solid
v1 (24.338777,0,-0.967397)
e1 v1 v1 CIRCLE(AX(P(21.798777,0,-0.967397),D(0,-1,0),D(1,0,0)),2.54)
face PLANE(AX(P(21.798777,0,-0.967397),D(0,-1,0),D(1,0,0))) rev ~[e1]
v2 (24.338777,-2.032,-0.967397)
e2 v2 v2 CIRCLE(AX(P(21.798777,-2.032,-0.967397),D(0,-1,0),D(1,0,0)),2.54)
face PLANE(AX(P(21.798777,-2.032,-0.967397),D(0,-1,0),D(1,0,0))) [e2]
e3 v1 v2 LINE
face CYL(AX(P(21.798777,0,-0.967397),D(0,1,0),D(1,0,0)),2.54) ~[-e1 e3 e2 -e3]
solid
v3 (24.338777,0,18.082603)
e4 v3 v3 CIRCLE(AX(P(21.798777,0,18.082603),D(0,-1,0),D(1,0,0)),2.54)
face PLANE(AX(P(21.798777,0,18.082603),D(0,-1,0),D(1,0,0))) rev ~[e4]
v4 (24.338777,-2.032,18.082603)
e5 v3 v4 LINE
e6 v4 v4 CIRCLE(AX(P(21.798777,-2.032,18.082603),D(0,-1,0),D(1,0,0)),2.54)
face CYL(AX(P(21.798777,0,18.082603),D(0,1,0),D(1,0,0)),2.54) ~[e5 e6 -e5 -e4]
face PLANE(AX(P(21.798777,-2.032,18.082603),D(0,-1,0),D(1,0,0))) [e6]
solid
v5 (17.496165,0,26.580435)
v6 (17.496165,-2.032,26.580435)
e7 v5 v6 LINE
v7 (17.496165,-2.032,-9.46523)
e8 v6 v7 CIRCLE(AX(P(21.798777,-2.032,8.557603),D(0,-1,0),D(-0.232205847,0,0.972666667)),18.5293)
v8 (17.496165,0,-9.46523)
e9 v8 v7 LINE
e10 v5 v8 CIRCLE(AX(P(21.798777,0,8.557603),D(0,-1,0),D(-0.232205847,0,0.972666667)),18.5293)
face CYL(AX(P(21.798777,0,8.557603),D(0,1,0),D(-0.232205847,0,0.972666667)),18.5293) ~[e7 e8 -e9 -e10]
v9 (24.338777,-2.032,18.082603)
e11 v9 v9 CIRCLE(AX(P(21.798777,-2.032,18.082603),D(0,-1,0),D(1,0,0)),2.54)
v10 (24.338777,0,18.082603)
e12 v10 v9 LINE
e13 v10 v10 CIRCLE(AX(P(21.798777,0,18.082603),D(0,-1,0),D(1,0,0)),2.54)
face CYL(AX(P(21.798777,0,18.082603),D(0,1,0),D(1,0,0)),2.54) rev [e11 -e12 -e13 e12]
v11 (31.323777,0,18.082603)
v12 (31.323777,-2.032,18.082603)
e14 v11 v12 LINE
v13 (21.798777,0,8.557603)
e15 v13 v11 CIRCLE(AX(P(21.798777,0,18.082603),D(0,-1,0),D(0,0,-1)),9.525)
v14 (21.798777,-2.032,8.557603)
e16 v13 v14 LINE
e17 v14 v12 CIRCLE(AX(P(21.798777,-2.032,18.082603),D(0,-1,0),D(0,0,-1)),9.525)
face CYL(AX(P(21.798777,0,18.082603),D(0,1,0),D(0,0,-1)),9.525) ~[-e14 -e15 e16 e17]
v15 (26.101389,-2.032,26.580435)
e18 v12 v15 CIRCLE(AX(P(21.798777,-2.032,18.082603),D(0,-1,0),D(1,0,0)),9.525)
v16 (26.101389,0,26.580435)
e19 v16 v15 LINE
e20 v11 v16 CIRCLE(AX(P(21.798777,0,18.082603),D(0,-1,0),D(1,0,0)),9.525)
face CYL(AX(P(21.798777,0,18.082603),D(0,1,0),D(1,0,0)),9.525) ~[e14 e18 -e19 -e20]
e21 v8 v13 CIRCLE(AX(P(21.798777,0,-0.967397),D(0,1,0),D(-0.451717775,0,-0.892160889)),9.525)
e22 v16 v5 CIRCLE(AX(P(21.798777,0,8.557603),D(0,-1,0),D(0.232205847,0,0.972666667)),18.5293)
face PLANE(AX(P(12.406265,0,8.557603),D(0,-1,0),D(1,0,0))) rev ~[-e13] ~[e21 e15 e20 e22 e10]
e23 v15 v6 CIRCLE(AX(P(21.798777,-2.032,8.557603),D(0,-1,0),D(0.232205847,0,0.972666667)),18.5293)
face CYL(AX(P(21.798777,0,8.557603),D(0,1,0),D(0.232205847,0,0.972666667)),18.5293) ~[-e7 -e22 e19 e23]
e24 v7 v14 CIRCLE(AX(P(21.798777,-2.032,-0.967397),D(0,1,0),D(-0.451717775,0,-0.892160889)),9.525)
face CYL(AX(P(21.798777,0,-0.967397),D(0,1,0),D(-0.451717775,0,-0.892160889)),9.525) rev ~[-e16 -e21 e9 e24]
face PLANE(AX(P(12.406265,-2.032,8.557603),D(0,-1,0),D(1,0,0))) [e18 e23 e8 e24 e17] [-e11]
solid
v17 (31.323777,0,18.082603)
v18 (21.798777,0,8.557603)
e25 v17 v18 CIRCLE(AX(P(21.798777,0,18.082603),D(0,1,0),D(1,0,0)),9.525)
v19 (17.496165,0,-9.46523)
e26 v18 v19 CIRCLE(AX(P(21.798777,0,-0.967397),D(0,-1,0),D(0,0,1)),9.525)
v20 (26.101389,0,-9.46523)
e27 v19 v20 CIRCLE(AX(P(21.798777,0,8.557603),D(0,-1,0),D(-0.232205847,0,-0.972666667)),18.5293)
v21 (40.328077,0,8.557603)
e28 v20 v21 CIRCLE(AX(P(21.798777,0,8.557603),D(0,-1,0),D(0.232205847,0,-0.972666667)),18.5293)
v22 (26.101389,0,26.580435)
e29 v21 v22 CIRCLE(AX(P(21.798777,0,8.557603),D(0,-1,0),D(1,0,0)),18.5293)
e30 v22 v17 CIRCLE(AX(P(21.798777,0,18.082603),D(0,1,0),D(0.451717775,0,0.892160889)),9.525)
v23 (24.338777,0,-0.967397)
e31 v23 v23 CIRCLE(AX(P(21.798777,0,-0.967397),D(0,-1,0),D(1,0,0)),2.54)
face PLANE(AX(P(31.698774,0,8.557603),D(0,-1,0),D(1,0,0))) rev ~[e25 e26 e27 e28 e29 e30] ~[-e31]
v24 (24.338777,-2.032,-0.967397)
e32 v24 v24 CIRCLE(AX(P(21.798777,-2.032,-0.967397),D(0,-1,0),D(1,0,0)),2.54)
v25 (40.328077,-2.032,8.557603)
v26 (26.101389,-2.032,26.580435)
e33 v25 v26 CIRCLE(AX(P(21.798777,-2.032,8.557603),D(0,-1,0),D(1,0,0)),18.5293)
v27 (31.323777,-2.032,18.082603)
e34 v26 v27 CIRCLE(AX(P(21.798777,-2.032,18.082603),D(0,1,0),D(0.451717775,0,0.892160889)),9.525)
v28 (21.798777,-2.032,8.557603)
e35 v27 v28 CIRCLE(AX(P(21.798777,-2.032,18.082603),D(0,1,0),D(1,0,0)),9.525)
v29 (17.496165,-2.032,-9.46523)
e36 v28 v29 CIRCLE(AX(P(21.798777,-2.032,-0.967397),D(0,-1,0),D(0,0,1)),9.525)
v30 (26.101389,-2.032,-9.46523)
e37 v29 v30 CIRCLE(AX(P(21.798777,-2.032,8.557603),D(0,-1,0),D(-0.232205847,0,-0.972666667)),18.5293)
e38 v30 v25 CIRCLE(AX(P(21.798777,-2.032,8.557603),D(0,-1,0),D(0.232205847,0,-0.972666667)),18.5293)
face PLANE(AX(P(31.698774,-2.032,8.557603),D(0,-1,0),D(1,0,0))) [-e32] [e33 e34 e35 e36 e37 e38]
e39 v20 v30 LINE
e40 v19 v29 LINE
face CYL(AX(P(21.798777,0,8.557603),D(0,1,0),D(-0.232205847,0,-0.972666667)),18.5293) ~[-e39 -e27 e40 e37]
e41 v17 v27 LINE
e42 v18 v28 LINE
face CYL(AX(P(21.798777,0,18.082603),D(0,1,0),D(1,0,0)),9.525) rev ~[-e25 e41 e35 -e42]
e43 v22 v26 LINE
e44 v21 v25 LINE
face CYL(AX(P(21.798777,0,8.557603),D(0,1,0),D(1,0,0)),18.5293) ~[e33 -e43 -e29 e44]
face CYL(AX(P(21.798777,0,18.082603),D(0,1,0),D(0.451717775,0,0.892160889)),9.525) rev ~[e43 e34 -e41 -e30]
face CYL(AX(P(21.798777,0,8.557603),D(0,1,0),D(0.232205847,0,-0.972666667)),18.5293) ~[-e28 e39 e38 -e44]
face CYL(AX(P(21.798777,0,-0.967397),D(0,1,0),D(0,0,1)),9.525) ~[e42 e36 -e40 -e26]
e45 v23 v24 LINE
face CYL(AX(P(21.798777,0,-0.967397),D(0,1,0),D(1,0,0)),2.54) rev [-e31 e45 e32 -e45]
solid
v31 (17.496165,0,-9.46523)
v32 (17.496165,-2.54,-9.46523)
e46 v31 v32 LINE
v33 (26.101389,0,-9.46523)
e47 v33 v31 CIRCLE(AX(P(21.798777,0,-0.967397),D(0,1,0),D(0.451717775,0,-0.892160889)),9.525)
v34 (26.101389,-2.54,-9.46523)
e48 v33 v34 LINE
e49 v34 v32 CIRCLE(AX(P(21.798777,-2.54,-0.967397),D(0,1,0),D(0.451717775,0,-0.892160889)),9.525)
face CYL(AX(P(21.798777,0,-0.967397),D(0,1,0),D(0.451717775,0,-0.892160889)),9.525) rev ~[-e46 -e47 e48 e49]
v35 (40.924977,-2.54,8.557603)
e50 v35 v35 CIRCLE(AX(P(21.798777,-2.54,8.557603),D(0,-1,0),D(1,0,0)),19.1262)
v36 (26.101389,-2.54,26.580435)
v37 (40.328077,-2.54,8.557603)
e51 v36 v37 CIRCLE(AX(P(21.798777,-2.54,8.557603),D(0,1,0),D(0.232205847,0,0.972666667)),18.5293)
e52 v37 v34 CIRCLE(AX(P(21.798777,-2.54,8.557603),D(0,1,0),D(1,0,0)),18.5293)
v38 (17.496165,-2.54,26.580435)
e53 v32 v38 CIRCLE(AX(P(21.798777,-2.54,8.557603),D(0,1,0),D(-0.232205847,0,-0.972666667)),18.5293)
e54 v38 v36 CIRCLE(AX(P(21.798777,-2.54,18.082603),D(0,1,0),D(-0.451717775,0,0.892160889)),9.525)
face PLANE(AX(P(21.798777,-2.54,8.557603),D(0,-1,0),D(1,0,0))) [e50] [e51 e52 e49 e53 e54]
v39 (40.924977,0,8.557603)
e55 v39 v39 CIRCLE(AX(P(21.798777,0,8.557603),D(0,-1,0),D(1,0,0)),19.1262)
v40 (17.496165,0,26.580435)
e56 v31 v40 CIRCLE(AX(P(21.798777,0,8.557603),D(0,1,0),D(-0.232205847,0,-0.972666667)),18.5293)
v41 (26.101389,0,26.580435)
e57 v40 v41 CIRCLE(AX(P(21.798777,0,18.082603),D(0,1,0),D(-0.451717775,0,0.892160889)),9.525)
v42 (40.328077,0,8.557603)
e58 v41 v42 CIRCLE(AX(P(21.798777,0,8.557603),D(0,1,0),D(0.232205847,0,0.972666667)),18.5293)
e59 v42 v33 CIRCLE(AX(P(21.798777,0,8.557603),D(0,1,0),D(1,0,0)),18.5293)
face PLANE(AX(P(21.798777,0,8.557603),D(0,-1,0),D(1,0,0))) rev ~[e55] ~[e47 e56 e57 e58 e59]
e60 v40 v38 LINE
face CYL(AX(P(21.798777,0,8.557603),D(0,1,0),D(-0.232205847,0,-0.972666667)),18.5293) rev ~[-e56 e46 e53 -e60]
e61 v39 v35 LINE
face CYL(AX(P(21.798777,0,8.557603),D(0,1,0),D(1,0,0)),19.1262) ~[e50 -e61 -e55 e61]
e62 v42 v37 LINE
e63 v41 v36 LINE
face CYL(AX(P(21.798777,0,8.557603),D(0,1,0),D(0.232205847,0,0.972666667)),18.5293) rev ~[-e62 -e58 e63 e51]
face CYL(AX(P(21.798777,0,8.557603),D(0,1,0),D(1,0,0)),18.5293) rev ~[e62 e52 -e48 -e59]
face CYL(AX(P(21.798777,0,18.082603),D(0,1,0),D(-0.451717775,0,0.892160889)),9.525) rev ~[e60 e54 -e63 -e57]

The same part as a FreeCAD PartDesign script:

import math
import FreeCAD as App
import Part
import Sketcher
Q = App.Units.Quantity

doc = App.newDocument("Part")
body = doc.addObject("PartDesign::Body", "Body")

sketch1 = doc.addObject("Sketcher::SketchObject", "Sketch")
body.addObject(sketch1)
sketch1.AttachmentSupport = (doc.XZ_Plane, [""])
sketch1.MapMode = "FlatFace"
sketch1.addGeometry([
    Part.ArcOfCircle(Part.Circle(App.Vector(21.8, 8.6, 0), App.Vector(0, 0, 1), 18.5), math.radians(103), math.radians(257)),
    Part.ArcOfCircle(Part.Circle(App.Vector(21.8, -1, 0), App.Vector(0, 0, 1), 9.5), math.radians(90), math.radians(243)),
    Part.ArcOfCircle(Part.Circle(App.Vector(21.8, 18.1, 0), App.Vector(0, 0, 1), 9.5), math.radians(-90), math.radians(0)),
    Part.ArcOfCircle(Part.Circle(App.Vector(21.8, 18.1, 0), App.Vector(0, 0, 1), 9.5), math.radians(0), math.radians(63)),
    Part.ArcOfCircle(Part.Circle(App.Vector(21.8, 8.6, 0), App.Vector(0, 0, 1), 18.5), math.radians(77), math.radians(103)),
    Part.Circle(App.Vector(21.8, 18.1, 0), App.Vector(0, 0, 1), 2.5),
], False)
sketch1.addConstraint([
    Sketcher.Constraint("Coincident", 0, 2, 1, 2),
    Sketcher.Constraint("Tangent", 1, 1, 2, 1),
    Sketcher.Constraint("Tangent", 2, 2, 3, 1),
    Sketcher.Constraint("Coincident", 3, 2, 4, 1),
    Sketcher.Constraint("Tangent", 4, 2, 0, 1),
    Sketcher.Constraint("Coincident", 5, 3, 2, 3),
    Sketcher.Constraint("Coincident", 1, 1, 0, 3),
    Sketcher.Constraint("Equal", 1, 2),
    Sketcher.Constraint("Equal", 2, 3),
    Sketcher.Constraint("Equal", 0, 4),
    Sketcher.Constraint("Horizontal", 5, 3, 2, 2),
    Sketcher.Constraint("Horizontal", 3, 2, 4, 2),
    Sketcher.Constraint("Vertical", 0, 3, 1, 3),
    Sketcher.Constraint("Diameter", 5, Q("0.2 in")),
    Sketcher.Constraint("Radius", 1, Q("0.375 in")),
    Sketcher.Constraint("Radius", 0, Q("0.7295 in")),
    Sketcher.Constraint("DistanceY", 0, 2, -1, 1, 9.46523),
    Sketcher.Constraint("DistanceX", -1, 1, 3, 2, 26.101389),
])
pad1 = doc.addObject("PartDesign::Pad", "Pad")
body.addObject(pad1)
pad1.Profile = sketch1
pad1.Length = Q("0.08 in")
body2 = doc.addObject("PartDesign::Body", "Body001")

sketch2 = doc.addObject("Sketcher::SketchObject", "Sketch001")
body2.addObject(sketch2)
sketch2.AttachmentSupport = (doc.getObject("XZ_Plane001"), [""])
sketch2.MapMode = "FlatFace"
sketch2.addGeometry(Part.Circle(App.Vector(21.8, -1, 0), App.Vector(0, 0, 1), 2.5), False)
sketch2.addConstraint([
    Sketcher.Constraint("Diameter", 0, Q("0.2 in")),
    Sketcher.Constraint("DistanceX", -1, 1, 0, 3, 21.798777),
    Sketcher.Constraint("DistanceY", 0, 3, -1, 1, 0.967397),
])
pad2 = doc.addObject("PartDesign::Pad", "Pad001")
body2.addObject(pad2)
pad2.Profile = sketch2
pad2.Length = Q("0.08 in")
body3 = doc.addObject("PartDesign::Body", "Body002")

sketch3 = doc.addObject("Sketcher::SketchObject", "Sketch002")
body3.addObject(sketch3)
sketch3.AttachmentSupport = (doc.getObject("XZ_Plane002"), [""])
sketch3.MapMode = "FlatFace"
sketch3.addGeometry([
    Part.ArcOfCircle(Part.Circle(App.Vector(21.8, 8.6, 0), App.Vector(0, 0, 1), 18.5), math.radians(-77), math.radians(0)),
    Part.ArcOfCircle(Part.Circle(App.Vector(21.8, 8.6, 0), App.Vector(0, 0, 1), 18.5), math.radians(0), math.radians(77)),
    Part.ArcOfCircle(Part.Circle(App.Vector(21.8, 18.1, 0), App.Vector(0, 0, 1), 9.5), math.radians(0), math.radians(63)),
    Part.ArcOfCircle(Part.Circle(App.Vector(21.8, 18.1, 0), App.Vector(0, 0, 1), 9.5), math.radians(-90), math.radians(0)),
    Part.ArcOfCircle(Part.Circle(App.Vector(21.8, -1, 0), App.Vector(0, 0, 1), 9.5), math.radians(90), math.radians(243)),
    Part.ArcOfCircle(Part.Circle(App.Vector(21.8, 8.6, 0), App.Vector(0, 0, 1), 18.5), math.radians(-103), math.radians(-77)),
    Part.Circle(App.Vector(21.8, -1, 0), App.Vector(0, 0, 1), 2.5),
], False)
sketch3.addConstraint([
    Sketcher.Constraint("Tangent", 0, 2, 1, 1),
    Sketcher.Constraint("Coincident", 1, 2, 2, 2),
    Sketcher.Constraint("Tangent", 2, 1, 3, 2),
    Sketcher.Constraint("Tangent", 3, 1, 4, 1),
    Sketcher.Constraint("Coincident", 4, 2, 5, 1),
    Sketcher.Constraint("Tangent", 5, 2, 0, 1),
    Sketcher.Constraint("Coincident", 6, 3, 4, 3),
    Sketcher.Constraint("Coincident", 3, 1, 0, 3),
    Sketcher.Constraint("Equal", 0, 1),
    Sketcher.Constraint("Equal", 2, 3),
    Sketcher.Constraint("Equal", 3, 4),
    Sketcher.Constraint("Equal", 1, 5),
    Sketcher.Constraint("Horizontal", 5, 3, 0, 2),
    Sketcher.Constraint("Horizontal", 3, 3, 2, 1),
    Sketcher.Constraint("Horizontal", 4, 2, 5, 2),
    Sketcher.Constraint("Vertical", 1, 3, 2, 3),
    Sketcher.Constraint("Diameter", 6, Q("0.2 in")),
    Sketcher.Constraint("Radius", 2, Q("0.375 in")),
    Sketcher.Constraint("Radius", 0, Q("0.7295 in")),
    Sketcher.Constraint("DistanceX", -1, 1, 1, 2, 26.101389),
    Sketcher.Constraint("DistanceY", 4, 2, -1, 1, 9.46523),
])
pad3 = doc.addObject("PartDesign::Pad", "Pad002")
body3.addObject(pad3)
pad3.Profile = sketch3
pad3.Length = Q("0.08 in")
body4 = doc.addObject("PartDesign::Body", "Body003")

sketch4 = doc.addObject("Sketcher::SketchObject", "Sketch003")
body4.addObject(sketch4)
sketch4.AttachmentSupport = (doc.getObject("XZ_Plane003"), [""])
sketch4.MapMode = "FlatFace"
sketch4.addGeometry(Part.Circle(App.Vector(21.8, 18.1, 0), App.Vector(0, 0, 1), 2.5), False)
sketch4.addConstraint([
    Sketcher.Constraint("Diameter", 0, Q("0.2 in")),
    Sketcher.Constraint("DistanceX", -1, 1, 0, 3, 21.798777),
    Sketcher.Constraint("DistanceY", -1, 1, 0, 3, 18.082603),
])
pad4 = doc.addObject("PartDesign::Pad", "Pad003")
body4.addObject(pad4)
pad4.Profile = sketch4
pad4.Length = Q("0.08 in")
body5 = doc.addObject("PartDesign::Body", "Body004")

sketch5 = doc.addObject("Sketcher::SketchObject", "Sketch004")
body5.addObject(sketch5)
sketch5.AttachmentSupport = (doc.getObject("XZ_Plane004"), [""])
sketch5.MapMode = "FlatFace"
sketch5.addGeometry([
    Part.Circle(App.Vector(22, 9, 0), App.Vector(0, 0, 1), 19),
    Part.ArcOfCircle(Part.Circle(App.Vector(22, 18, 0), App.Vector(0, 0, 1), 10), math.radians(63), math.radians(117)),
    Part.ArcOfCircle(Part.Circle(App.Vector(22, 9, 0), App.Vector(0, 0, 1), 19), math.radians(0), math.radians(77)),
    Part.ArcOfCircle(Part.Circle(App.Vector(22, 9, 0), App.Vector(0, 0, 1), 19), math.radians(-77), math.radians(0)),
    Part.ArcOfCircle(Part.Circle(App.Vector(22, -1, 0), App.Vector(0, 0, 1), 10), math.radians(-117), math.radians(-63)),
    Part.ArcOfCircle(Part.Circle(App.Vector(22, 9, 0), App.Vector(0, 0, 1), 19), math.radians(103), math.radians(257)),
], False)
sketch5.addConstraint([
    Sketcher.Constraint("Coincident", 1, 1, 2, 2),
    Sketcher.Constraint("Tangent", 2, 1, 3, 2),
    Sketcher.Constraint("Coincident", 3, 1, 4, 2),
    Sketcher.Constraint("Coincident", 4, 1, 5, 2),
    Sketcher.Constraint("Coincident", 5, 1, 1, 2),
    Sketcher.Constraint("Coincident", 2, 3, 0, 3),
    Sketcher.Constraint("Coincident", 5, 3, 0, 3),
    Sketcher.Constraint("Equal", 2, 3),
    Sketcher.Constraint("Equal", 1, 4),
    Sketcher.Constraint("Equal", 3, 5),
    Sketcher.Constraint("Horizontal", 5, 3, 2, 1),
    Sketcher.Constraint("Horizontal", 3, 1, 4, 1),
    Sketcher.Constraint("Horizontal", 1, 1, 5, 1),
    Sketcher.Constraint("Vertical", 1, 1, 3, 1),
    Sketcher.Constraint("Diameter", 0, Q("1.506 in")),
    Sketcher.Constraint("Radius", 1, Q("0.375 in")),
    Sketcher.Constraint("Radius", 2, Q("0.7295 in")),
    Sketcher.Constraint("DistanceY", 4, 3, 1, 3, Q("0.75 in")),
    Sketcher.Constraint("DistanceX", -1, 1, 1, 1, 26.101389),
    Sketcher.Constraint("DistanceY", 3, 1, -1, 1, 9.46523),
])
pad5 = doc.addObject("PartDesign::Pad", "Pad004")
body5.addObject(pad5)
pad5.Profile = sketch5
pad5.Length = Q("0.1 in")

doc.recompute()
